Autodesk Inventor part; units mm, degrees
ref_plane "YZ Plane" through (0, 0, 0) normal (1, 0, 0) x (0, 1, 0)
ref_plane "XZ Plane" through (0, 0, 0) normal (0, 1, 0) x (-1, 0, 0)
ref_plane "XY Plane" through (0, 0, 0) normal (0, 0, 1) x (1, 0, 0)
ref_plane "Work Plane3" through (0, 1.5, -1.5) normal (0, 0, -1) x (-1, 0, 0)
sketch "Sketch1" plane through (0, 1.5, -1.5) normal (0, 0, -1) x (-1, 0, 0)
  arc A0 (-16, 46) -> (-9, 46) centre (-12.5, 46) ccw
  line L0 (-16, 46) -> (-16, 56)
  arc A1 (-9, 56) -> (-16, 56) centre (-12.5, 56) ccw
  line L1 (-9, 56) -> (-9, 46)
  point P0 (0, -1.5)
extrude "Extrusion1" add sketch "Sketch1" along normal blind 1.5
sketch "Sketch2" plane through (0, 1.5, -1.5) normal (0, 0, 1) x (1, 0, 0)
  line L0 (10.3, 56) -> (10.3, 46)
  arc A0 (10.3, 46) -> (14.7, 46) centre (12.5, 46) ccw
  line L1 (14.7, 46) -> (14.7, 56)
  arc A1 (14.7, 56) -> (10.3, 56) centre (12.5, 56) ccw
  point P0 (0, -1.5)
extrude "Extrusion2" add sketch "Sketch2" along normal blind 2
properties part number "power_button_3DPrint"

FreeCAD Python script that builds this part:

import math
import FreeCAD as App
import Part
import Sketcher

V = App.Vector
Q = App.Units.Quantity

doc = App.newDocument("Part")
params = doc.addObject("Spreadsheet::Sheet", "Params")
for row, (alias, value) in enumerate([
    ("sketch1_radius", "3.5 mm"),
    ("sketch1_height", "10 mm"),
    ("pad1_length", "1.5 mm"),
    ("sketch2_radius", "2.2 mm"),
    ("sketch2_height", "10 mm"),
    ("pad2_length", "2 mm"),
], start=1):
    params.set(f"A{row}", alias)
    params.set(f"B{row}", "=" + value)
    params.setAlias(f"B{row}", alias)

body = doc.addObject("PartDesign::Body", "Body")

# Sketch on XY plane
sketch1 = body.newObject("Sketcher::SketchObject", "Sketch")
sketch1.AttachmentSupport = (doc.getObject("XY_Plane"), [""])
sketch1.MapMode = "FlatFace"
sketch1.AttachmentOffset = App.Placement(V(0, 0, -1.5), App.Rotation())
sketch1.addGeometry([
    Part.LineSegment(V(16, 57.5, 0), V(16, 47.5, 0)),
    Part.ArcOfCircle(Part.Circle(V(12.5, 47.5, 0), V(0, 0, 1), 3.5), math.radians(180), math.radians(360)),
    Part.LineSegment(V(9, 47.5, 0), V(9, 57.5, 0)),
    Part.ArcOfCircle(Part.Circle(V(12.5, 57.5, 0), V(0, 0, 1), 3.5), math.radians(0), math.radians(180)),
], False)
sketch1.addConstraint([
    Sketcher.Constraint("Tangent", 0, 2, 1, 2),
    Sketcher.Constraint("Tangent", 1, 1, 2, 1),
    Sketcher.Constraint("Tangent", 2, 2, 3, 2),
    Sketcher.Constraint("Tangent", 3, 1, 0, 1),
    Sketcher.Constraint("Vertical", 0),
    Sketcher.Constraint("Vertical", 2),
    Sketcher.Constraint("Radius", 1, Q("3.5 mm")),
    Sketcher.Constraint("DistanceY", 0, 2, 0, 1, Q("10 mm")),
    Sketcher.Constraint("DistanceX", -1, 1, 0, 2, Q("16 mm")),
    Sketcher.Constraint("DistanceY", -1, 1, 1, 3, Q("47.5 mm")),
])
sketch1.setExpression("Constraints[6]", "Params.sketch1_radius")
sketch1.setExpression("Constraints[7]", "Params.sketch1_height")
pad1 = body.newObject("PartDesign::Pad", "Pad")
pad1.Profile = sketch1
pad1.setExpression("Length", "Params.pad1_length")
pad1.Reversed = True

# Sketch on XY plane
sketch2 = body.newObject("Sketcher::SketchObject", "Sketch001")
sketch2.AttachmentSupport = (doc.getObject("XY_Plane"), [""])
sketch2.MapMode = "FlatFace"
sketch2.AttachmentOffset = App.Placement(V(0, 0, -1.5), App.Rotation())
sketch2.addGeometry([
    Part.ArcOfCircle(Part.Circle(V(12.5, 57.5, 0), V(0, 0, 1), 2.2), math.radians(0), math.radians(180)),
    Part.LineSegment(V(10.3, 57.5, 0), V(10.3, 47.5, 0)),
    Part.ArcOfCircle(Part.Circle(V(12.5, 47.5, 0), V(0, 0, 1), 2.2), math.radians(180), math.radians(360)),
    Part.LineSegment(V(14.7, 47.5, 0), V(14.7, 57.5, 0)),
], False)
sketch2.addConstraint([
    Sketcher.Constraint("Tangent", 0, 2, 1, 1),
    Sketcher.Constraint("Tangent", 1, 2, 2, 1),
    Sketcher.Constraint("Tangent", 2, 2, 3, 1),
    Sketcher.Constraint("Tangent", 3, 2, 0, 1),
    Sketcher.Constraint("Vertical", 1),
    Sketcher.Constraint("Vertical", 3),
    Sketcher.Constraint("Radius", 0, Q("2.2 mm")),
    Sketcher.Constraint("DistanceY", 1, 2, 1, 1, Q("10 mm")),
    Sketcher.Constraint("DistanceX", -1, 1, 0, 3, Q("12.5 mm")),
    Sketcher.Constraint("DistanceY", -1, 1, 0, 3, Q("57.5 mm")),
])
sketch2.setExpression("Constraints[6]", "Params.sketch2_radius")
sketch2.setExpression("Constraints[7]", "Params.sketch2_height")
pad2 = body.newObject("PartDesign::Pad", "Pad001")
pad2.Profile = sketch2
pad2.setExpression("Length", "Params.pad2_length")

doc.recompute()
